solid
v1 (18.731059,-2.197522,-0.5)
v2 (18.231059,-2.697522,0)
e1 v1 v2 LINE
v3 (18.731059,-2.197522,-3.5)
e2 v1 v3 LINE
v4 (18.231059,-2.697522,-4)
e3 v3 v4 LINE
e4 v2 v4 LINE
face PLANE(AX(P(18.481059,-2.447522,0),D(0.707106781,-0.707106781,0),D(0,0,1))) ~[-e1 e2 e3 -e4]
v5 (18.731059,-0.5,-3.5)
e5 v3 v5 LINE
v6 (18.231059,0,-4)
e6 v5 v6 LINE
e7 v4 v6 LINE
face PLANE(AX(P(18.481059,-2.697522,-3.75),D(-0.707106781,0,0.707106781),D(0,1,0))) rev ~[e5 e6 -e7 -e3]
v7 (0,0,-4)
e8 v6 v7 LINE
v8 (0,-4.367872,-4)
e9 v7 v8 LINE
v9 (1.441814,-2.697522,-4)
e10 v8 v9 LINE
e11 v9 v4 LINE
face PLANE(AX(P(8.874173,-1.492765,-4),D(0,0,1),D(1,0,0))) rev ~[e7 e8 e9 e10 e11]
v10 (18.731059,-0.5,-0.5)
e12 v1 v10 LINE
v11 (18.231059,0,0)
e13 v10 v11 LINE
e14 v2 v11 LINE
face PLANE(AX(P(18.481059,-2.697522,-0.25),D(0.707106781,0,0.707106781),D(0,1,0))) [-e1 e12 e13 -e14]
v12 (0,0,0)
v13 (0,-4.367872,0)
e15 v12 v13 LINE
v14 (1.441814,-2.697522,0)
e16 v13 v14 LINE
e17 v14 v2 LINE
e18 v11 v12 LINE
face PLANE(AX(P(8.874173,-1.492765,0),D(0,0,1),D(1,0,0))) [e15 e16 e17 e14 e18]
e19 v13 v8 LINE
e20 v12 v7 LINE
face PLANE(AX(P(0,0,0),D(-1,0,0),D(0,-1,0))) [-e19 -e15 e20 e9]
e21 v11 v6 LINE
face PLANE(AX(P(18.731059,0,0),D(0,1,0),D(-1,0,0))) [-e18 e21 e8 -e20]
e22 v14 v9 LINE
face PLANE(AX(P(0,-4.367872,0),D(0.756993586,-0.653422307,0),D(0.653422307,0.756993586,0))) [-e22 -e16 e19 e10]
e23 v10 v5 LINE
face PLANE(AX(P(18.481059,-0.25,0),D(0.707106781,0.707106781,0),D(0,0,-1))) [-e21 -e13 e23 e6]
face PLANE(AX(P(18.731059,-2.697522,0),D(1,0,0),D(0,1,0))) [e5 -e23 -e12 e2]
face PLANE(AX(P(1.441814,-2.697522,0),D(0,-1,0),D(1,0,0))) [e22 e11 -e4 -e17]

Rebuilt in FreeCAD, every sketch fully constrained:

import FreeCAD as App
import Part
import Sketcher


def edges_at(feature, points):
    """Names of the edges that pass closest to the given points."""
    edges = feature.Shape.Edges
    near = lambda p: min(range(len(edges)), key=lambda i: edges[i].distToShape(Part.Vertex(*p))[0])
    return sorted({f"Edge{near(p) + 1}" for p in points})


def add_polygon(sketch, points):
    """Adds a closed chain of lines whose ends are joined by coincident constraints."""
    first, n = sketch.GeometryCount, len(points)
    for a, b in zip(points, points[1:] + points[:1]):
        sketch.addGeometry(Part.LineSegment(App.Vector(*a, 0), App.Vector(*b, 0)), False)
    for i in range(n):
        sketch.addConstraint(Sketcher.Constraint("Coincident", first + i, 2, first + (i + 1) % n, 1))

doc = App.newDocument("Part")
params = doc.addObject("Spreadsheet::Sheet", "Params")
for row, (alias, value) in enumerate([
    ("pad1_length", "4 mm"),
    ("chamfer_size", "0.5 mm"),
], start=1):
    params.set(f"A{row}", alias)
    params.set(f"B{row}", "=" + value)
    params.setAlias(f"B{row}", alias)

body = doc.addObject("PartDesign::Body", "Body")

# Sketch on XY plane
sketch1 = body.newObject("Sketcher::SketchObject", "Sketch")
sketch1.AttachmentSupport = (doc.getObject("XY_Plane"), [""])
sketch1.MapMode = "FlatFace"
add_polygon(sketch1, [(18.7, -2.7), (18.7, 0), (0, 0), (0, -4.4), (1.4, -2.7)])  # lines 0-4
sketch1.addConstraint([
    Sketcher.Constraint("Vertical", 0),
    Sketcher.Constraint("Horizontal", 1),
    Sketcher.Constraint("Vertical", 2),
    Sketcher.Constraint("Horizontal", 4),
    Sketcher.Constraint("Coincident", 1, 2, -1, 1),
    Sketcher.Constraint("DistanceX", 1, 2, 1, 1, 18.731059),
    Sketcher.Constraint("DistanceX", 4, 1, 4, 2, 17.289245),
    Sketcher.Constraint("DistanceY", 0, 1, 0, 2, 2.697522),
    Sketcher.Constraint("DistanceY", 2, 2, 2, 1, 4.367872),
])
pad1 = body.newObject("PartDesign::Pad", "Pad")
pad1.Profile = sketch1
pad1.setExpression("Length", "Params.pad1_length")
pad1.Reversed = True
doc.recompute()

chamfer = body.newObject("PartDesign::Chamfer", "Chamfer")
chamfer.Base = (pad1, edges_at(pad1, [
    (18.731, -2.698, -2),
    (18.731, -1.349, 0),
    (18.731, 0, -2),
    (18.731, -1.349, -4),
]))
chamfer.setExpression("Size", "Params.chamfer_size")

doc.recompute()
